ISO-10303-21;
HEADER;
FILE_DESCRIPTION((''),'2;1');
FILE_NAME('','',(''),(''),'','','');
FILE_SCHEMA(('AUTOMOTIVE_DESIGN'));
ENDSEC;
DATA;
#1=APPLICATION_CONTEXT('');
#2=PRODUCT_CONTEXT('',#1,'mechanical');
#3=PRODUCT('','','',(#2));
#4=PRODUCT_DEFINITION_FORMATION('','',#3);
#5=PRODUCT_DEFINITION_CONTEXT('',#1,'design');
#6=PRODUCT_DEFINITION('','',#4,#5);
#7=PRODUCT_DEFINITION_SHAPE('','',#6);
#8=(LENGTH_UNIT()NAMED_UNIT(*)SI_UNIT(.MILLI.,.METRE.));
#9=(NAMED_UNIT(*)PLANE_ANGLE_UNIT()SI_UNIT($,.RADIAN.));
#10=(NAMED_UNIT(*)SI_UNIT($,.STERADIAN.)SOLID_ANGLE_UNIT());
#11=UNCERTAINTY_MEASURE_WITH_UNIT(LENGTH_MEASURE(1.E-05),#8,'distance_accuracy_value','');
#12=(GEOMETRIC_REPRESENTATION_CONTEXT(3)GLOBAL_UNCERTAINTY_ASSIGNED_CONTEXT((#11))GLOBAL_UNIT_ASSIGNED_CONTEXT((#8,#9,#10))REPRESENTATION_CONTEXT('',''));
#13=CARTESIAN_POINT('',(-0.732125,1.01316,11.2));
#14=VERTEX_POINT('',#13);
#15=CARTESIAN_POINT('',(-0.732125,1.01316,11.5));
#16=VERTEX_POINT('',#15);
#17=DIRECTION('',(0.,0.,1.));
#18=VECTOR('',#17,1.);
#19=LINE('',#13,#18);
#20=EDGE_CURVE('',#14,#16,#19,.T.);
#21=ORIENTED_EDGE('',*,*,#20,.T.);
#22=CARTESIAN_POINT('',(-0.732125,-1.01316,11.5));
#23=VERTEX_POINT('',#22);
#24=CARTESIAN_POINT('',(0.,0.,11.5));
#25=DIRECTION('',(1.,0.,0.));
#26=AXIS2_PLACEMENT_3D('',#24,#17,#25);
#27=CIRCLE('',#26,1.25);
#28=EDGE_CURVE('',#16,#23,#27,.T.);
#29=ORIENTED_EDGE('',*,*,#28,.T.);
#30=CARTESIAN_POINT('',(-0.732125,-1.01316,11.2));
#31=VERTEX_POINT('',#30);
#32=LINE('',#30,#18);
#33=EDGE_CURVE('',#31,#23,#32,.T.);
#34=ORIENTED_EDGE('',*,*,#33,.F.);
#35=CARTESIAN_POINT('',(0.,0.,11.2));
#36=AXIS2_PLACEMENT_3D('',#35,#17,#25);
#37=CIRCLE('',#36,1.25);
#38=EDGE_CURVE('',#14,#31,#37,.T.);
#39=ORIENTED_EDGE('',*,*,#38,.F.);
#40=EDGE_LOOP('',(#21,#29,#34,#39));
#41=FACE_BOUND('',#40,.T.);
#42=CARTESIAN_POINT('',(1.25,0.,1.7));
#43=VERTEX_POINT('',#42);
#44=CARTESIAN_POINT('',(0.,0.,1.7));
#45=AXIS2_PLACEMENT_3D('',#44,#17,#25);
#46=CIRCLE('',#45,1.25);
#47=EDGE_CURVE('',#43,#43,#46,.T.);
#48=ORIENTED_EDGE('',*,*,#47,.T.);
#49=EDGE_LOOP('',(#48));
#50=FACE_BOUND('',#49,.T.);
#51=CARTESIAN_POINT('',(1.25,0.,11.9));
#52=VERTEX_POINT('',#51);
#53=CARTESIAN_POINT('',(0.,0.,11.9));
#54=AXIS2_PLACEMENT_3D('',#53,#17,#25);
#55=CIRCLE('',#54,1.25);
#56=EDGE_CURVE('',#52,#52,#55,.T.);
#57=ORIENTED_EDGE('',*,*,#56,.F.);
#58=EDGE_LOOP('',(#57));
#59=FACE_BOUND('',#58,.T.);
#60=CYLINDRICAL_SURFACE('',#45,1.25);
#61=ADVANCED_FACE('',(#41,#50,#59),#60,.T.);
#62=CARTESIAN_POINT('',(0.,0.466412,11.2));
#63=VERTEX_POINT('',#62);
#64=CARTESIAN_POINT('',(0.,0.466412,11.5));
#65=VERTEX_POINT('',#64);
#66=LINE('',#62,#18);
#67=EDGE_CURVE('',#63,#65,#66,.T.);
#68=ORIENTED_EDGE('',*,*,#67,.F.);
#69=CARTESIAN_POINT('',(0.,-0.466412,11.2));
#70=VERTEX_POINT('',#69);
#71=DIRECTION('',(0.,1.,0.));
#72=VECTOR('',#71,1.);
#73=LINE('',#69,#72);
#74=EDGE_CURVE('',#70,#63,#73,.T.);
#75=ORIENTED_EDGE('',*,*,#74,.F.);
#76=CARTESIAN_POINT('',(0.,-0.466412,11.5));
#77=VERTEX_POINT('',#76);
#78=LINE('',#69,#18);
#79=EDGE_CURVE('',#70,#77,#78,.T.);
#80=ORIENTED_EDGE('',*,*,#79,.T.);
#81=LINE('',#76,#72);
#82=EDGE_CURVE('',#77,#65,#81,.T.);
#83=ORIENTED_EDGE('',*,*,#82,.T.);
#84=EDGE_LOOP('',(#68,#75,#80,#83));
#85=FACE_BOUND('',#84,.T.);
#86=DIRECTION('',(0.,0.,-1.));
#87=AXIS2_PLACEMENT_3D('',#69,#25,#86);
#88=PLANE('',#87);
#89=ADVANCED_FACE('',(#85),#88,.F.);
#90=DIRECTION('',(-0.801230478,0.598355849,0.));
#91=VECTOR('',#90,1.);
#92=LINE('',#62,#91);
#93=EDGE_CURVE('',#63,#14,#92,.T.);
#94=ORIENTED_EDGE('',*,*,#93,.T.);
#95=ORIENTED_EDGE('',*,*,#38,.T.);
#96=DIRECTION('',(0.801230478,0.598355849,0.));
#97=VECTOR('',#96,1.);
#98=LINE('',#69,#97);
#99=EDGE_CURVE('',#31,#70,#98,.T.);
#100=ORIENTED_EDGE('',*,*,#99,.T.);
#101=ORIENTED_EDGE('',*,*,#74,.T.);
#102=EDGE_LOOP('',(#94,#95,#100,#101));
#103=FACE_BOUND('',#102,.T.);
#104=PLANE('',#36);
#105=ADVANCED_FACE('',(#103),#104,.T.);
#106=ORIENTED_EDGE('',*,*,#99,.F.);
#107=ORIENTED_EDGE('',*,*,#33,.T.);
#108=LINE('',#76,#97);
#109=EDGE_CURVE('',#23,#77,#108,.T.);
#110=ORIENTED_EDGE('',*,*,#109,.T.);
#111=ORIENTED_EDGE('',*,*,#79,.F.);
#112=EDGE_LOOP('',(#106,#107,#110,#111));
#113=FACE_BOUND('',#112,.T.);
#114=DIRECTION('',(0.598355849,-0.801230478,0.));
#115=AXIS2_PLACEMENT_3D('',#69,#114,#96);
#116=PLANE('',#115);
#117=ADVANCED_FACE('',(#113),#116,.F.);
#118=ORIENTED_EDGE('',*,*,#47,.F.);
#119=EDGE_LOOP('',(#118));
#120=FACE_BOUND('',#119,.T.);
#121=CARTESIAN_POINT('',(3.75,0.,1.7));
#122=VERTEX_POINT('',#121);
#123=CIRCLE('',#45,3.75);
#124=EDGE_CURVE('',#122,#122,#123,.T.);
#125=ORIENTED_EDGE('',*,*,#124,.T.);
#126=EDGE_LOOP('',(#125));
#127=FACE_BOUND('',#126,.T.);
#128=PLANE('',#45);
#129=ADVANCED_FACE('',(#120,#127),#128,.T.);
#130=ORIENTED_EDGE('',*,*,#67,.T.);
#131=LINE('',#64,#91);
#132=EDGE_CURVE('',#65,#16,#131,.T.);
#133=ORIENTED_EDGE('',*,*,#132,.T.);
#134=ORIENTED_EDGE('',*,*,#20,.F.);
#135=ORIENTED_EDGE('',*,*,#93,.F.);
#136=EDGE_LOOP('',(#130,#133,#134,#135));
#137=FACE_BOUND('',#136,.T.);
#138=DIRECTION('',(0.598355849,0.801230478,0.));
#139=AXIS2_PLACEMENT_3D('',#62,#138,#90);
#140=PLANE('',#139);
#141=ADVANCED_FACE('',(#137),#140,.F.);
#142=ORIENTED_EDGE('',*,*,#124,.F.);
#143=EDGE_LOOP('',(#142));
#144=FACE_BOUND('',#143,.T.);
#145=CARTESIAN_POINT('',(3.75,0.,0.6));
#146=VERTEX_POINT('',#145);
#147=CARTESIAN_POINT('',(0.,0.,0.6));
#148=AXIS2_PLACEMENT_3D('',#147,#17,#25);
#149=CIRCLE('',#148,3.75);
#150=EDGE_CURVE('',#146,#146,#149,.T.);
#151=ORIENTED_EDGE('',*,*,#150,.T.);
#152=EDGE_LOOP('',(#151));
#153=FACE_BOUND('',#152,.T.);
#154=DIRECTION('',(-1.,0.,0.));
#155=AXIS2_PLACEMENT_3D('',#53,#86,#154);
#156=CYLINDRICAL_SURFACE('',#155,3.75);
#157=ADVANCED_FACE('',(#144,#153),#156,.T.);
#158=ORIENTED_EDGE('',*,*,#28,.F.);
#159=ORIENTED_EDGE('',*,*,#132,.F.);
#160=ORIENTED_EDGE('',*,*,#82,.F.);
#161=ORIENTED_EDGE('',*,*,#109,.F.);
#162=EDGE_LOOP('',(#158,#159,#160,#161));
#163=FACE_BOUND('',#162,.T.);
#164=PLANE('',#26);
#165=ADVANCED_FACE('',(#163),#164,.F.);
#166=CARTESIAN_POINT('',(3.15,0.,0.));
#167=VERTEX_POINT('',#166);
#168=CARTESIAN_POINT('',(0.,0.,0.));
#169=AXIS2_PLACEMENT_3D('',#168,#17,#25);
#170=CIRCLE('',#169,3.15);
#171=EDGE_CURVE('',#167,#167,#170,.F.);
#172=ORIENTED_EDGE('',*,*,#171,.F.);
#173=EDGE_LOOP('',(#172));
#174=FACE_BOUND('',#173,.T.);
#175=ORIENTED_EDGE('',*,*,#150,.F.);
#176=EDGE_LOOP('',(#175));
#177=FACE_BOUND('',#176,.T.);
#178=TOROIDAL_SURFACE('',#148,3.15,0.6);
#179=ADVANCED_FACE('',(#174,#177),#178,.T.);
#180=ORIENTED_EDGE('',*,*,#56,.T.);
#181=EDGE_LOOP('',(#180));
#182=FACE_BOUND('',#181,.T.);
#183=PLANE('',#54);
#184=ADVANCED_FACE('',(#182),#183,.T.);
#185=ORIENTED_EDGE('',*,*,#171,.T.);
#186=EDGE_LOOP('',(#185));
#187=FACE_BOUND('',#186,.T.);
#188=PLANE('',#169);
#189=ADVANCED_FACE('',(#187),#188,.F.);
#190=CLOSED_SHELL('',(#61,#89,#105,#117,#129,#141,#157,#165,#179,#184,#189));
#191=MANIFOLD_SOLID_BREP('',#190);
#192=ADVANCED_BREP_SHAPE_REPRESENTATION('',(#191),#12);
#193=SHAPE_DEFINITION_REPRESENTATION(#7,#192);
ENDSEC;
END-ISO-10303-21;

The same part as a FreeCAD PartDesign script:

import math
import FreeCAD as App
import Part
import Sketcher

V = App.Vector
Q = App.Units.Quantity


def edges_at(feature, points):
    """Names of the edges that pass closest to the given points."""
    edges = feature.Shape.Edges
    near = lambda p: min(range(len(edges)), key=lambda i: edges[i].distToShape(Part.Vertex(*p))[0])
    return sorted({f"Edge{near(p) + 1}" for p in points})

doc = App.newDocument("Part")
body = doc.addObject("PartDesign::Body", "Body")

# Sketch on XY plane
sketch1 = body.newObject("Sketcher::SketchObject", "Sketch")
sketch1.AttachmentSupport = (doc.getObject("XY_Plane"), [""])
sketch1.MapMode = "FlatFace"
sketch1.addGeometry(Part.Circle(V(0, 0, 0), V(0, 0, 1), 3.75), False)
sketch1.addConstraint([
    Sketcher.Constraint("Coincident", 0, 3, -1, 1),
    Sketcher.Constraint("Diameter", 0, Q("7.5 mm")),
])
pad1 = body.newObject("PartDesign::Pad", "Pad")
pad1.Profile = sketch1
pad1.Length = 11.9

# Sketch on XY plane
sketch2 = body.newObject("Sketcher::SketchObject", "Sketch001")
sketch2.AttachmentSupport = (doc.getObject("XY_Plane"), [""])
sketch2.MapMode = "FlatFace"
sketch2.AttachmentOffset = App.Placement(V(0, 0, 11.9), App.Rotation())
sketch2.addGeometry([
    Part.Circle(V(0, 0, 0), V(0, 0, 1), 3.75),
    Part.Circle(V(0, 0, 0), V(0, 0, 1), 1.25),
], False)
sketch2.addConstraint([
    Sketcher.Constraint("Coincident", 0, 3, -1, 1),
    Sketcher.Constraint("Coincident", 1, 3, -1, 1),
    Sketcher.Constraint("Diameter", 0, Q("7.5 mm")),
    Sketcher.Constraint("Diameter", 1, Q("2.5 mm")),
])
pocket1 = body.newObject("PartDesign::Pocket", "Pocket")
pocket1.Profile = sketch2
pocket1.Length = 10.2
doc.recompute()

fillet = body.newObject("PartDesign::Fillet", "Fillet")
fillet.Base = (pocket1, edges_at(pocket1, [(-3.75, 0, 0)]))
fillet.Radius = 0.6

# Sketch on XY plane
sketch3 = body.newObject("Sketcher::SketchObject", "Sketch002")
sketch3.AttachmentSupport = (doc.getObject("XY_Plane"), [""])
sketch3.MapMode = "FlatFace"
sketch3.AttachmentOffset = App.Placement(V(0, 0, 11.5), App.Rotation())
sketch3.addGeometry([
    Part.LineSegment(V(0, 0.466412, 0), V(-0.732125, 1.01316, 0)),
    Part.ArcOfCircle(Part.Circle(V(0, 0, 0), V(0, 0, 1), 1.25), math.radians(125.852449), math.radians(234.147551)),
    Part.LineSegment(V(-0.732125, -1.01316, 0), V(0, -0.466412, 0)),
    Part.LineSegment(V(0, -0.466412, 0), V(0, 0.466412, 0)),
], False)
sketch3.addConstraint([
    Sketcher.Constraint("Coincident", 0, 2, 1, 1),
    Sketcher.Constraint("Coincident", 1, 2, 2, 1),
    Sketcher.Constraint("Coincident", 2, 2, 3, 1),
    Sketcher.Constraint("Coincident", 3, 2, 0, 1),
    Sketcher.Constraint("Vertical", 3),
    Sketcher.Constraint("Coincident", 1, 3, -1, 1),
    Sketcher.Constraint("Symmetric", 2, 2, 3, 2, -1, 1),
    Sketcher.Constraint("Vertical", 0, 2, 1, 2),
    Sketcher.Constraint("Radius", 1, Q("1.25 mm")),
    Sketcher.Constraint("Distance", 0, Q("0.913751 mm")),
    Sketcher.Constraint("DistanceY", 3, 1, 3, 2, Q("0.932824 mm")),
])
pocket2 = body.newObject("PartDesign::Pocket", "Pocket001")
pocket2.Profile = sketch3
pocket2.Length = 0.3

doc.recompute()
